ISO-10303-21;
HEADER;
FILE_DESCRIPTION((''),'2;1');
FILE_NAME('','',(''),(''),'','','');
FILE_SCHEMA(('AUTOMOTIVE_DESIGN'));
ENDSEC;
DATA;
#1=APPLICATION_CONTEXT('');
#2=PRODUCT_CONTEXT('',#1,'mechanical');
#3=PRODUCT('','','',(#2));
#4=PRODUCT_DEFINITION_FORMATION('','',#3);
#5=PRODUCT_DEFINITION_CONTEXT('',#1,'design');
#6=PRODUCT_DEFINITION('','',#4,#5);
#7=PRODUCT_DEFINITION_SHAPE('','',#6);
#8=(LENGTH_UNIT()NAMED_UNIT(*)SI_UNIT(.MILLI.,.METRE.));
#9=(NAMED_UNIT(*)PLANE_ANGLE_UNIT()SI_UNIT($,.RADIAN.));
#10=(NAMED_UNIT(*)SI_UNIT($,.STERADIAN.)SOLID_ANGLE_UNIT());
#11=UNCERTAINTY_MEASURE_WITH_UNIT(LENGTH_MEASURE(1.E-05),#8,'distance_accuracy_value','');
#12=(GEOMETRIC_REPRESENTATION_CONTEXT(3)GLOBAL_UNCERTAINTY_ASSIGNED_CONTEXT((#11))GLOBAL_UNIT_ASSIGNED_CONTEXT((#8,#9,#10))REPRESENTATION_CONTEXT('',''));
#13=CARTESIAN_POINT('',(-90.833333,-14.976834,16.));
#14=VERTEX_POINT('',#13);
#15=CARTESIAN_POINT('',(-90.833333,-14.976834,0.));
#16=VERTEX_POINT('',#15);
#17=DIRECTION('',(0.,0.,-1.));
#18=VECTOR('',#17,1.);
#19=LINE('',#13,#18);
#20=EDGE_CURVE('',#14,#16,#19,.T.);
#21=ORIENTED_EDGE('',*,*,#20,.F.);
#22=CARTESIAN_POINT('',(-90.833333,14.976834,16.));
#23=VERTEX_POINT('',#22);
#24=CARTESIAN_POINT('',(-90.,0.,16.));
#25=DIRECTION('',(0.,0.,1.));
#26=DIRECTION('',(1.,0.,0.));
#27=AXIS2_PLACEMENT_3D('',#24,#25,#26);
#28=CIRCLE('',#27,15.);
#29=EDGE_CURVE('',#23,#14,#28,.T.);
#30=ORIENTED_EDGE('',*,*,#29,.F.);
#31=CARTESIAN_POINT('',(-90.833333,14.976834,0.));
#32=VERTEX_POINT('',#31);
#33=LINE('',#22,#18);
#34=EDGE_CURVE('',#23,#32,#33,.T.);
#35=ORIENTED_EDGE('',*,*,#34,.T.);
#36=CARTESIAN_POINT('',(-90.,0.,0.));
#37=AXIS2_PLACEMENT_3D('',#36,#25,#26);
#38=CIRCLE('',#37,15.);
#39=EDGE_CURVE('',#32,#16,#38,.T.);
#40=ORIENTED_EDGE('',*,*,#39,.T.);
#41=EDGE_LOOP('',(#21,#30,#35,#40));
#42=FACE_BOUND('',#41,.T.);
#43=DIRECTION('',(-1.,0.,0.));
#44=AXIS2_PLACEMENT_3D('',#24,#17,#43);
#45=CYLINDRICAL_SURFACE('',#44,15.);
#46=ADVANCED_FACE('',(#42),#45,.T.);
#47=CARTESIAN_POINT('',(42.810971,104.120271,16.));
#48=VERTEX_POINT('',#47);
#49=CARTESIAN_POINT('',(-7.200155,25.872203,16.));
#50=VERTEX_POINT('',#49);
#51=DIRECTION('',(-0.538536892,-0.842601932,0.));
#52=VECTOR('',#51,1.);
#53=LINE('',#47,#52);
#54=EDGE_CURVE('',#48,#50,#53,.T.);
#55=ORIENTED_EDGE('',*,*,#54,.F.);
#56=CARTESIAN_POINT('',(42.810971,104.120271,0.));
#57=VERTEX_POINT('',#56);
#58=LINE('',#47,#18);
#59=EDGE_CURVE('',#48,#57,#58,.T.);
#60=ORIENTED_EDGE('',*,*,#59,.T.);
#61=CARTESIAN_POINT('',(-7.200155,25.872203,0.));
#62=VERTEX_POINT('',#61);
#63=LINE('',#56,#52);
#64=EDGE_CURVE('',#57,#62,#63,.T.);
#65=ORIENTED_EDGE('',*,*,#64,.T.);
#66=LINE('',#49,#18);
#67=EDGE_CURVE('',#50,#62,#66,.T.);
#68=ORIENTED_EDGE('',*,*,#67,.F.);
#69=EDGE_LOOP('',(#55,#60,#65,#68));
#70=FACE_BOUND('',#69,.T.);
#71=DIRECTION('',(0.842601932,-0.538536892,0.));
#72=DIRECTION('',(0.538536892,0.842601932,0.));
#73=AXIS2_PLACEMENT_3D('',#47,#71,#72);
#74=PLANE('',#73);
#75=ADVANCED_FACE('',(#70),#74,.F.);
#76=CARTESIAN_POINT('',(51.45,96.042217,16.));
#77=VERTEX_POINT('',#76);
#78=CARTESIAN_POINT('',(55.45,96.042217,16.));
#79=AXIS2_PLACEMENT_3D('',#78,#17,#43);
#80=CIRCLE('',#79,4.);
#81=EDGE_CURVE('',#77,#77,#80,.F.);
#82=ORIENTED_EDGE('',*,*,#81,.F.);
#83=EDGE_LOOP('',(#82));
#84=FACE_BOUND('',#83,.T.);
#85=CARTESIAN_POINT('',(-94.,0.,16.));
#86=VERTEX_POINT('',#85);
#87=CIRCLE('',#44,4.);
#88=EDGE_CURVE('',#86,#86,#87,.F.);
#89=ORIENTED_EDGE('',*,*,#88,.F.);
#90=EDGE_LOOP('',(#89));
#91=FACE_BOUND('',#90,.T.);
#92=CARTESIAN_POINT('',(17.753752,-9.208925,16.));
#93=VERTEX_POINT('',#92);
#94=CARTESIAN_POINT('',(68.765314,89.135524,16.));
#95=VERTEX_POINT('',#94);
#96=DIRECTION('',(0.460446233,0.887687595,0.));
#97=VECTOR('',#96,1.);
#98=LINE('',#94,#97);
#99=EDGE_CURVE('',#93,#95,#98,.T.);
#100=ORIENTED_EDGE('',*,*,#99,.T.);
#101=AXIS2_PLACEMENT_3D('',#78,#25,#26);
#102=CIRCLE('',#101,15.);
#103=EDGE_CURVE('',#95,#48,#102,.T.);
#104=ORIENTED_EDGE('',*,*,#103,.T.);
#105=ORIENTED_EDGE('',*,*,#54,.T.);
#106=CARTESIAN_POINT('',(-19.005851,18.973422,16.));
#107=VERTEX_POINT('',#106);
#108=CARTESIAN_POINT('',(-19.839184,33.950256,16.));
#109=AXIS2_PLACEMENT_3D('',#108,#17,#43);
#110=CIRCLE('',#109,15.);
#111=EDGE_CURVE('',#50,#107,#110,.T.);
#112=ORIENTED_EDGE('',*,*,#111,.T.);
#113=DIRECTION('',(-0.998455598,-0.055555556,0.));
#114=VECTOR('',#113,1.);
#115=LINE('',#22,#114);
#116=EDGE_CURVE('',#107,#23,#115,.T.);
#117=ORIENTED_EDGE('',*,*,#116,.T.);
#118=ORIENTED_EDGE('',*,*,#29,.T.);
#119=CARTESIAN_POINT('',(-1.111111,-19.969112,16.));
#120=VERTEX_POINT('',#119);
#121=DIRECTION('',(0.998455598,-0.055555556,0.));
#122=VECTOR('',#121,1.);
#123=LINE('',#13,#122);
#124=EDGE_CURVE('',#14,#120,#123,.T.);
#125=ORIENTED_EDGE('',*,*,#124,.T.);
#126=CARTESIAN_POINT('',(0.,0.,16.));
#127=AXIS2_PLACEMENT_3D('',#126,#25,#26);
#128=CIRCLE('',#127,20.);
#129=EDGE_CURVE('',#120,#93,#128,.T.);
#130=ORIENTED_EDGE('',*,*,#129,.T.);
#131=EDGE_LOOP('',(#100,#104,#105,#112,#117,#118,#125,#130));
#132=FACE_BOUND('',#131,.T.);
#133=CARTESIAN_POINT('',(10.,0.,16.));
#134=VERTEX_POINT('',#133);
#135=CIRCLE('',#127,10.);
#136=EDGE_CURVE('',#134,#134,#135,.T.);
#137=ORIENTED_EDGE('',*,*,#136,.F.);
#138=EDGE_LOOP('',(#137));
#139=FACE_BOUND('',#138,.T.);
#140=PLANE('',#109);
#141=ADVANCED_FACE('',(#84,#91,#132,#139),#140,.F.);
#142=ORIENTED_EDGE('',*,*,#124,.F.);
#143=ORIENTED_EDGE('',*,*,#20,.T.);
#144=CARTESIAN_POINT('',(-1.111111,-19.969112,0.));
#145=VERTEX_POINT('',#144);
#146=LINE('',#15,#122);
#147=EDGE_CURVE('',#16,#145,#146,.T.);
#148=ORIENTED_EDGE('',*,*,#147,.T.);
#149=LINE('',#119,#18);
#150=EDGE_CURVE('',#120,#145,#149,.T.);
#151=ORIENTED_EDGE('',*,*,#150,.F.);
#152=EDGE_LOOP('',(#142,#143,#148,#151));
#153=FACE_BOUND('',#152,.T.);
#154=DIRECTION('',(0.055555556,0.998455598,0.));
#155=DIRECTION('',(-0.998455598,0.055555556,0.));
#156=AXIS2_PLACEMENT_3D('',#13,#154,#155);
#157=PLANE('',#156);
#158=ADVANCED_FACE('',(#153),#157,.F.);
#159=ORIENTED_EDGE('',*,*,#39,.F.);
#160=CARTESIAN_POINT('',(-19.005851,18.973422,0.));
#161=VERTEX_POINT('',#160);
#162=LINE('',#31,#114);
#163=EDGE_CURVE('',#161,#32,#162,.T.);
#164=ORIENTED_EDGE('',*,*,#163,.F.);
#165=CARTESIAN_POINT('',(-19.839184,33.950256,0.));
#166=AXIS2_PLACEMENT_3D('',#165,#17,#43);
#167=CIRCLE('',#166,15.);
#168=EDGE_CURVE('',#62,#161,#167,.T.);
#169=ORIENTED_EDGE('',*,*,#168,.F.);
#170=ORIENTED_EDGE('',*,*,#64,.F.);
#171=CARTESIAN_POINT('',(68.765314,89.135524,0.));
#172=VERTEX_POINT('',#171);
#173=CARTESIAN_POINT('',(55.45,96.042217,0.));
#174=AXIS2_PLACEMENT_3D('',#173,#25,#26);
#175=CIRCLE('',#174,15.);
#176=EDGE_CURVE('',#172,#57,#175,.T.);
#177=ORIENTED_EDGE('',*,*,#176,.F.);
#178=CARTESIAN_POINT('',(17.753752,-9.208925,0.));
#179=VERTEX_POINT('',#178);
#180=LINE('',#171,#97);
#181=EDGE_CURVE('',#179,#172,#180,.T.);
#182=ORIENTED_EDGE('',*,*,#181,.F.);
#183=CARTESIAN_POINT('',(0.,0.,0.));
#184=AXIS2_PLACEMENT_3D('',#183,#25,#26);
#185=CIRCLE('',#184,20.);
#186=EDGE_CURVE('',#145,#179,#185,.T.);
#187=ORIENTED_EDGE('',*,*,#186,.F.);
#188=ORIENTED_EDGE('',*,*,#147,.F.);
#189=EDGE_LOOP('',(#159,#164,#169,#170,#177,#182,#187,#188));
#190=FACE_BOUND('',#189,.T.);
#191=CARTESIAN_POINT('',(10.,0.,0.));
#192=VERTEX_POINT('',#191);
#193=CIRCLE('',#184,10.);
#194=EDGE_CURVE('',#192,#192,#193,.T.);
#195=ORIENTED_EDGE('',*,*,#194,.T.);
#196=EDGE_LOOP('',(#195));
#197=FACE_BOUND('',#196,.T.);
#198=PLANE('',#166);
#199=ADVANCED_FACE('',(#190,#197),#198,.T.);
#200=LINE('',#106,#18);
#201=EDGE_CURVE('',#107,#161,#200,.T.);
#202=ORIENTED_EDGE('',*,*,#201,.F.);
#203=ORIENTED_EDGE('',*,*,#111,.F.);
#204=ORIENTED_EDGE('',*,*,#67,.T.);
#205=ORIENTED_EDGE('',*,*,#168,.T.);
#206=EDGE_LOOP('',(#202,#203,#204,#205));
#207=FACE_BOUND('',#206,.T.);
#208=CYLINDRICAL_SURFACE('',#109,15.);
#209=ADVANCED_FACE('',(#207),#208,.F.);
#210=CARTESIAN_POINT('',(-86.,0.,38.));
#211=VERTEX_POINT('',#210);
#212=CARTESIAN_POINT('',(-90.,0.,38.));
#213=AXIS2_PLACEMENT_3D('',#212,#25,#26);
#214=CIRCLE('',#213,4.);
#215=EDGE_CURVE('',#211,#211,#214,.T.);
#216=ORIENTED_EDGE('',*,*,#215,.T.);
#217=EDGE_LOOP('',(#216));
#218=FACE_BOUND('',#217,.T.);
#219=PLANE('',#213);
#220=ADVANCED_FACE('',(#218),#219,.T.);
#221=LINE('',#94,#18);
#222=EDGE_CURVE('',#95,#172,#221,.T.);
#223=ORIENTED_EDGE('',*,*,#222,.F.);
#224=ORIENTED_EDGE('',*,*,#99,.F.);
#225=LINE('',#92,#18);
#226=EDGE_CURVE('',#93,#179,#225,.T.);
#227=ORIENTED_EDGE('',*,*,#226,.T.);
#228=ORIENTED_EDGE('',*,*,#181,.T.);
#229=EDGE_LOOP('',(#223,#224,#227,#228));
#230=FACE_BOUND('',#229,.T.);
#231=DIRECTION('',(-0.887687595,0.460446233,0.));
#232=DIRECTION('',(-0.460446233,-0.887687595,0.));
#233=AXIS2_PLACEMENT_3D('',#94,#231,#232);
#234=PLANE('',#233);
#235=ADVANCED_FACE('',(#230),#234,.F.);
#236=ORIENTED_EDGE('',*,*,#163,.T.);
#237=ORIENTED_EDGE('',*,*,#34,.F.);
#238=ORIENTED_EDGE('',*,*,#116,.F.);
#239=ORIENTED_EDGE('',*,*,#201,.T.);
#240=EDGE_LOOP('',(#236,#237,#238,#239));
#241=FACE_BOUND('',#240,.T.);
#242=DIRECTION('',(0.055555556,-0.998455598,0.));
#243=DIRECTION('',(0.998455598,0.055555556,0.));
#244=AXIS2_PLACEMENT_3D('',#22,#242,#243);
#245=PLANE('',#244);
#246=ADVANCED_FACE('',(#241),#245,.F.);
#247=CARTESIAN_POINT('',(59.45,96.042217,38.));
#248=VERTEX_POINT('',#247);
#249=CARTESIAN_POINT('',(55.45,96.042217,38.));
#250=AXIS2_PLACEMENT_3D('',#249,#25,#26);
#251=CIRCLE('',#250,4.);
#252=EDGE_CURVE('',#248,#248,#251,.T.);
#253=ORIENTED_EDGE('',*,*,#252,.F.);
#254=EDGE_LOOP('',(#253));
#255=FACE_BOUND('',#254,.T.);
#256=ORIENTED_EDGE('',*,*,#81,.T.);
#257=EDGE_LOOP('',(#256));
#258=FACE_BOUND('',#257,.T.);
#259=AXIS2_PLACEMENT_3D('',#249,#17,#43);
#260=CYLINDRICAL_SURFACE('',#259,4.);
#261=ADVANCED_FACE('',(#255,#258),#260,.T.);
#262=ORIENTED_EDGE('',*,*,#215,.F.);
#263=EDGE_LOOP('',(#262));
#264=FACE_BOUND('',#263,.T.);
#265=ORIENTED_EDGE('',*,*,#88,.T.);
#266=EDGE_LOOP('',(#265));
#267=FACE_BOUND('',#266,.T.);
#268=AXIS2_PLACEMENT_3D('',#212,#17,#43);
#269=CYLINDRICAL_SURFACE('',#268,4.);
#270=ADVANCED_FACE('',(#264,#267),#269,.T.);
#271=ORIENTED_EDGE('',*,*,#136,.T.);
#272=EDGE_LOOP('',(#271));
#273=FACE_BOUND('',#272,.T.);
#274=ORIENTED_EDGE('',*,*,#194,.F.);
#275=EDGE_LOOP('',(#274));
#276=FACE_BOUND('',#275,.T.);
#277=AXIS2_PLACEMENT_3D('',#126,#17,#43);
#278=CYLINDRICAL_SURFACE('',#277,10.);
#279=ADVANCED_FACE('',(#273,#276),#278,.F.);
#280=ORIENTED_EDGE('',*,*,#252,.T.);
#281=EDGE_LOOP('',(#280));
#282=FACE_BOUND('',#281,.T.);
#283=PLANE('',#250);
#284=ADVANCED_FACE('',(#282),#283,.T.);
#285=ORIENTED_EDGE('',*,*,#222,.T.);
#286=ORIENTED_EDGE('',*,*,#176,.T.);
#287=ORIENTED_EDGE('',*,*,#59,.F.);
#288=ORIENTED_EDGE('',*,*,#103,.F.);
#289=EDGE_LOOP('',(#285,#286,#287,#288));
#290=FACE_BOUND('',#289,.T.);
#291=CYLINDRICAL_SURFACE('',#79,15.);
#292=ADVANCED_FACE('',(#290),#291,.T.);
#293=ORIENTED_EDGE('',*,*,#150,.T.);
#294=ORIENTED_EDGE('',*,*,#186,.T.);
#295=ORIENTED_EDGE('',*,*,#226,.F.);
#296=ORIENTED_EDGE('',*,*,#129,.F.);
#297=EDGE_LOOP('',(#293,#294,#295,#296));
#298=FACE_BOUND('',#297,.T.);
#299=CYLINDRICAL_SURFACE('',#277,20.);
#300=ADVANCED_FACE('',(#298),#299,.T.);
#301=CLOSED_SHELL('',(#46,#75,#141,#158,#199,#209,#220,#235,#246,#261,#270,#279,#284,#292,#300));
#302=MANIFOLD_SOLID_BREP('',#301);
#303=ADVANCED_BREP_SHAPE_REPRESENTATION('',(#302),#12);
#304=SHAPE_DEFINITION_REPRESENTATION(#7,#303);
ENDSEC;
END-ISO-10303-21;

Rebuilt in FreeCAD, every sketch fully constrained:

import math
import FreeCAD as App
import Part
import Sketcher
Q = App.Units.Quantity

doc = App.newDocument("Part")
body = doc.addObject("PartDesign::Body", "Body")

sketch1 = body.newObject("Sketcher::SketchObject", "Sketch")
sketch1.AttachmentSupport = (doc.getObject("XY_Plane"), [""])
sketch1.MapMode = "FlatFace"
sketch1.addGeometry(Part.LineSegment(App.Vector(18, -9, 0), App.Vector(69, 89, 0)), False)
sketch1.addGeometry(Part.ArcOfCircle(Part.Circle(App.Vector(55, 96, 0), App.Vector(0, 0, 1), 15), math.radians(-27), math.radians(147)), False)
sketch1.addGeometry(Part.LineSegment(App.Vector(43, 104, 0), App.Vector(-7, 26, 0)), False)
sketch1.addGeometry(Part.ArcOfCircle(Part.Circle(App.Vector(-20, 34, 0), App.Vector(0, 0, 1), 15), math.radians(-87), math.radians(-33)), False)
sketch1.addGeometry(Part.LineSegment(App.Vector(-19, 19, 0), App.Vector(-91, 15, 0)), False)
sketch1.addGeometry(Part.ArcOfCircle(Part.Circle(App.Vector(-90, 0, 0), App.Vector(0, 0, 1), 15), math.radians(93), math.radians(267)), False)
sketch1.addGeometry(Part.LineSegment(App.Vector(-91, -15, 0), App.Vector(-1, -20, 0)), False)
sketch1.addGeometry(Part.ArcOfCircle(Part.Circle(App.Vector(0, 0, 0), App.Vector(0, 0, 1), 20), math.radians(-93), math.radians(-27)), False)
sketch1.addConstraint(Sketcher.Constraint("Tangent", 0, 2, 1, 1))
sketch1.addConstraint(Sketcher.Constraint("Tangent", 1, 2, 2, 1))
sketch1.addConstraint(Sketcher.Constraint("Tangent", 2, 2, 3, 2))
sketch1.addConstraint(Sketcher.Constraint("Tangent", 3, 1, 4, 1))
sketch1.addConstraint(Sketcher.Constraint("Tangent", 4, 2, 5, 1))
sketch1.addConstraint(Sketcher.Constraint("Tangent", 5, 2, 6, 1))
sketch1.addConstraint(Sketcher.Constraint("Tangent", 6, 2, 7, 1))
sketch1.addConstraint(Sketcher.Constraint("Tangent", 7, 2, 0, 1))
sketch1.addConstraint(Sketcher.Constraint("Coincident", 7, 3, -1, 1))
sketch1.addConstraint(Sketcher.Constraint("Equal", 1, 3))
sketch1.addConstraint(Sketcher.Constraint("Equal", 3, 5))
sketch1.addConstraint(Sketcher.Constraint("Symmetric", 4, 2, 5, 2, -1))
sketch1.addConstraint(Sketcher.Constraint("Radius", 1, Q("15 mm")))
sketch1.addConstraint(Sketcher.Constraint("Radius", 7, Q("20 mm")))
sketch1.addConstraint(Sketcher.Constraint("DistanceX", 5, 3, -1, 1, Q("90 mm")))
sketch1.addConstraint(Sketcher.Constraint("DistanceX", -1, 1, 1, 3, Q("55.45 mm")))
sketch1.addConstraint(Sketcher.Constraint("Distance", 0, Q("110.787229 mm")))
sketch1.addConstraint(Sketcher.Constraint("Distance", 2, Q("92.86481 mm")))
pad1 = body.newObject("PartDesign::Pad", "Pad")
pad1.Profile = sketch1
pad1.Length = 16

sketch2 = body.newObject("Sketcher::SketchObject", "Sketch001")
sketch2.AttachmentSupport = (doc.getObject("XY_Plane"), [""])
sketch2.MapMode = "FlatFace"
sketch2.AttachmentOffset = App.Placement(App.Vector(0, 0, 16), App.Rotation())
sketch2.addGeometry(Part.Circle(App.Vector(-90, 0, 0), App.Vector(0, 0, 1), 4), False)
sketch2.addGeometry(Part.Circle(App.Vector(55.5, 96, 0), App.Vector(0, 0, 1), 4), False)
sketch2.addConstraint(Sketcher.Constraint("Equal", 0, 1))
sketch2.addConstraint(Sketcher.Constraint("PointOnObject", 0, 3, -1))
sketch2.addConstraint(Sketcher.Constraint("Diameter", 0, Q("8 mm")))
sketch2.addConstraint(Sketcher.Constraint("DistanceX", 0, 3, -1, 1, Q("90 mm")))
sketch2.addConstraint(Sketcher.Constraint("DistanceX", -1, 1, 1, 3, Q("55.45 mm")))
sketch2.addConstraint(Sketcher.Constraint("DistanceY", -1, 1, 1, 3, Q("96.042217 mm")))
pad2 = body.newObject("PartDesign::Pad", "Pad001")
pad2.Profile = sketch2
pad2.Length = 22

sketch3 = body.newObject("Sketcher::SketchObject", "Sketch002")
sketch3.AttachmentSupport = (doc.getObject("XY_Plane"), [""])
sketch3.MapMode = "FlatFace"
sketch3.addGeometry(Part.Circle(App.Vector(0, 0, 0), App.Vector(0, 0, 1), 10), False)
sketch3.addConstraint(Sketcher.Constraint("Coincident", 0, 3, -1, 1))
sketch3.addConstraint(Sketcher.Constraint("Diameter", 0, Q("20 mm")))
pocket1 = body.newObject("PartDesign::Pocket", "Pocket")
pocket1.Profile = sketch3
pocket1.Length = 16
pocket1.Reversed = True

doc.recompute()
